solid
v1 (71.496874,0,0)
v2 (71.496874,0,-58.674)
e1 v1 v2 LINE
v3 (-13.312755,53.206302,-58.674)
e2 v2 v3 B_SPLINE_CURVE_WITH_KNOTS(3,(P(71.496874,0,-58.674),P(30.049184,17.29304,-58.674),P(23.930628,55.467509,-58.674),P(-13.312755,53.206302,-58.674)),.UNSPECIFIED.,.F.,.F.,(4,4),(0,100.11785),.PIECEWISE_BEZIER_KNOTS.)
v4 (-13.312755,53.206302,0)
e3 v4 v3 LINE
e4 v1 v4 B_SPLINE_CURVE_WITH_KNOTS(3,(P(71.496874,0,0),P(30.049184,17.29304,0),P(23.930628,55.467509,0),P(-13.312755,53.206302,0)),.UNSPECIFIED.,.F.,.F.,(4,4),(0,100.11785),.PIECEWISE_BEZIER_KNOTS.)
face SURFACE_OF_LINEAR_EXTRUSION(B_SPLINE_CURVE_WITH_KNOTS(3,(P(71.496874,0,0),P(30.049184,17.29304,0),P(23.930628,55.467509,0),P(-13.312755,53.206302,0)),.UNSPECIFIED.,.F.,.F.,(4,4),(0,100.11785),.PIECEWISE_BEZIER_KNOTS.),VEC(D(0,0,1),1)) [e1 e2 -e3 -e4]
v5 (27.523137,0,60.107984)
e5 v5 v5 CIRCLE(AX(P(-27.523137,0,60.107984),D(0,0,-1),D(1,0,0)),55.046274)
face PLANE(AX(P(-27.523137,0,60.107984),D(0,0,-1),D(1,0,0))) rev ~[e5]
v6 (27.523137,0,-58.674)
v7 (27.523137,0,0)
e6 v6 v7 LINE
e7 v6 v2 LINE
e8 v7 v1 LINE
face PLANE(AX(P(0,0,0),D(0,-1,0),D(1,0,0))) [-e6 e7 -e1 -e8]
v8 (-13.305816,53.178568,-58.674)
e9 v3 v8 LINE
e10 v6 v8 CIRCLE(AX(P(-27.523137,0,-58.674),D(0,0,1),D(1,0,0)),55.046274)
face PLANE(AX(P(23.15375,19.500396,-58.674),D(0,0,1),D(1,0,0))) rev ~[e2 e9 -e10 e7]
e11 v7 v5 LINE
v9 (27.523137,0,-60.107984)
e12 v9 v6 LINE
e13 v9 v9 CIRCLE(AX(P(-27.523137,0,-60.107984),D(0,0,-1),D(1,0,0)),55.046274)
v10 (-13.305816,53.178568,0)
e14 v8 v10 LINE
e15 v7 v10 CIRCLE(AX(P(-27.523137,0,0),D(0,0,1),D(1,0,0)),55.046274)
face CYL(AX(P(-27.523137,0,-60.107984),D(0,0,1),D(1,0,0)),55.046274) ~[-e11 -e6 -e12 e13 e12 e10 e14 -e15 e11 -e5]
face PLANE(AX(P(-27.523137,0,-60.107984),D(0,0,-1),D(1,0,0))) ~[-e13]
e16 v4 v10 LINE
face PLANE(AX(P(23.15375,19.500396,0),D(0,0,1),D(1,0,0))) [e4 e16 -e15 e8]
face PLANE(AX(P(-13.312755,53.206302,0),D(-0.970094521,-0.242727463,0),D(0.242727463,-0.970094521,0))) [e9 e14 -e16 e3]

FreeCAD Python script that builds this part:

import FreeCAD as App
import Part
import Sketcher

V = App.Vector
Q = App.Units.Quantity

doc = App.newDocument("Part")
body = doc.addObject("PartDesign::Body", "Body")

# Sketch on XZ plane
sketch1 = body.newObject("Sketcher::SketchObject", "Sketch")
sketch1.AttachmentSupport = (doc.getObject("XZ_Plane"), [""])
sketch1.MapMode = "FlatFace"
sketch1.addGeometry(Part.LineSegment(V(27.523137, 60.107984, 0), V(-27.523137, 60.107984, 0)), False)
sketch1.addGeometry(Part.LineSegment(V(-27.523137, 60.107984, 0), V(-27.523137, -60.107984, 0)), False)
sketch1.addGeometry(Part.LineSegment(V(-27.523137, -60.107984, 0), V(27.523137, -60.107984, 0)), False)
sketch1.addGeometry(Part.LineSegment(V(27.523137, -60.107984, 0), V(27.523137, 60.107984, 0)), False)
sketch1.addGeometry(Part.LineSegment(V(-27.523137, 60.107984, 0), V(-27.523137, -60.107984, 0)), True)  # axis
sketch1.addConstraint(Sketcher.Constraint("Coincident", 0, 2, 1, 1))
sketch1.addConstraint(Sketcher.Constraint("Coincident", 1, 2, 2, 1))
sketch1.addConstraint(Sketcher.Constraint("Coincident", 2, 2, 3, 1))
sketch1.addConstraint(Sketcher.Constraint("Coincident", 3, 2, 0, 1))
sketch1.addConstraint(Sketcher.Constraint("Horizontal", 0))
sketch1.addConstraint(Sketcher.Constraint("Vertical", 1))
sketch1.addConstraint(Sketcher.Constraint("Horizontal", 2))
sketch1.addConstraint(Sketcher.Constraint("Vertical", 3))
sketch1.addConstraint(Sketcher.Constraint("Vertical", 4))
sketch1.addConstraint(Sketcher.Constraint("Coincident", 4, 1, 0, 2))
sketch1.addConstraint(Sketcher.Constraint("Symmetric", 0, 2, 2, 2, -1, 1))
sketch1.addConstraint(Sketcher.Constraint("Horizontal", 2, 2, 4, 2))
sketch1.addConstraint(Sketcher.Constraint("DistanceY", 1, 2, 1, 1, 120.215968))
sketch1.addConstraint(Sketcher.Constraint("DistanceX", 0, 2, 0, 1, 55.046274))
revolution = body.newObject("PartDesign::Revolution", "Revolution")
revolution.Profile = sketch1
revolution.ReferenceAxis = (sketch1, ["Axis0"])
revolution.Angle = 360

# Sketch on XY plane
sketch2 = body.newObject("Sketcher::SketchObject", "Sketch001")
sketch2.AttachmentSupport = (doc.getObject("XY_Plane"), [""])
sketch2.MapMode = "FlatFace"
sketch2.addGeometry(Part.LineSegment(V(0, 0, 0), V(71.496874, 0, 0)), False)
sketch2.addGeometry(Part.BSplineCurve([V(71.496874, 0, 0), V(30.049184, 17.29304, 0), V(23.930628, 55.467509, 0), V(-13.312755, 53.206302, 0)], [4, 4], [0, 100.11785], False, 3, [1, 1, 1, 1], False), False)
sketch2.addGeometry(Part.LineSegment(V(-13.312755, 53.206302, 0), V(0, 0, 0)), False)
sketch2.addConstraint(Sketcher.Constraint("Block", 1))
sketch2.addConstraint(Sketcher.Constraint("Coincident", 0, 2, 1, 1))
sketch2.addConstraint(Sketcher.Constraint("Coincident", 1, 2, 2, 1))
sketch2.addConstraint(Sketcher.Constraint("Coincident", 2, 2, 0, 1))
sketch2.addConstraint(Sketcher.Constraint("Horizontal", 0))
sketch2.addConstraint(Sketcher.Constraint("DistanceX", 0, 1, 0, 2, 71.496874))
pad1 = body.newObject("PartDesign::Pad", "Pad")
pad1.Profile = sketch2
pad1.Length = Q("2.31 in")
pad1.Reversed = True

doc.recompute()
